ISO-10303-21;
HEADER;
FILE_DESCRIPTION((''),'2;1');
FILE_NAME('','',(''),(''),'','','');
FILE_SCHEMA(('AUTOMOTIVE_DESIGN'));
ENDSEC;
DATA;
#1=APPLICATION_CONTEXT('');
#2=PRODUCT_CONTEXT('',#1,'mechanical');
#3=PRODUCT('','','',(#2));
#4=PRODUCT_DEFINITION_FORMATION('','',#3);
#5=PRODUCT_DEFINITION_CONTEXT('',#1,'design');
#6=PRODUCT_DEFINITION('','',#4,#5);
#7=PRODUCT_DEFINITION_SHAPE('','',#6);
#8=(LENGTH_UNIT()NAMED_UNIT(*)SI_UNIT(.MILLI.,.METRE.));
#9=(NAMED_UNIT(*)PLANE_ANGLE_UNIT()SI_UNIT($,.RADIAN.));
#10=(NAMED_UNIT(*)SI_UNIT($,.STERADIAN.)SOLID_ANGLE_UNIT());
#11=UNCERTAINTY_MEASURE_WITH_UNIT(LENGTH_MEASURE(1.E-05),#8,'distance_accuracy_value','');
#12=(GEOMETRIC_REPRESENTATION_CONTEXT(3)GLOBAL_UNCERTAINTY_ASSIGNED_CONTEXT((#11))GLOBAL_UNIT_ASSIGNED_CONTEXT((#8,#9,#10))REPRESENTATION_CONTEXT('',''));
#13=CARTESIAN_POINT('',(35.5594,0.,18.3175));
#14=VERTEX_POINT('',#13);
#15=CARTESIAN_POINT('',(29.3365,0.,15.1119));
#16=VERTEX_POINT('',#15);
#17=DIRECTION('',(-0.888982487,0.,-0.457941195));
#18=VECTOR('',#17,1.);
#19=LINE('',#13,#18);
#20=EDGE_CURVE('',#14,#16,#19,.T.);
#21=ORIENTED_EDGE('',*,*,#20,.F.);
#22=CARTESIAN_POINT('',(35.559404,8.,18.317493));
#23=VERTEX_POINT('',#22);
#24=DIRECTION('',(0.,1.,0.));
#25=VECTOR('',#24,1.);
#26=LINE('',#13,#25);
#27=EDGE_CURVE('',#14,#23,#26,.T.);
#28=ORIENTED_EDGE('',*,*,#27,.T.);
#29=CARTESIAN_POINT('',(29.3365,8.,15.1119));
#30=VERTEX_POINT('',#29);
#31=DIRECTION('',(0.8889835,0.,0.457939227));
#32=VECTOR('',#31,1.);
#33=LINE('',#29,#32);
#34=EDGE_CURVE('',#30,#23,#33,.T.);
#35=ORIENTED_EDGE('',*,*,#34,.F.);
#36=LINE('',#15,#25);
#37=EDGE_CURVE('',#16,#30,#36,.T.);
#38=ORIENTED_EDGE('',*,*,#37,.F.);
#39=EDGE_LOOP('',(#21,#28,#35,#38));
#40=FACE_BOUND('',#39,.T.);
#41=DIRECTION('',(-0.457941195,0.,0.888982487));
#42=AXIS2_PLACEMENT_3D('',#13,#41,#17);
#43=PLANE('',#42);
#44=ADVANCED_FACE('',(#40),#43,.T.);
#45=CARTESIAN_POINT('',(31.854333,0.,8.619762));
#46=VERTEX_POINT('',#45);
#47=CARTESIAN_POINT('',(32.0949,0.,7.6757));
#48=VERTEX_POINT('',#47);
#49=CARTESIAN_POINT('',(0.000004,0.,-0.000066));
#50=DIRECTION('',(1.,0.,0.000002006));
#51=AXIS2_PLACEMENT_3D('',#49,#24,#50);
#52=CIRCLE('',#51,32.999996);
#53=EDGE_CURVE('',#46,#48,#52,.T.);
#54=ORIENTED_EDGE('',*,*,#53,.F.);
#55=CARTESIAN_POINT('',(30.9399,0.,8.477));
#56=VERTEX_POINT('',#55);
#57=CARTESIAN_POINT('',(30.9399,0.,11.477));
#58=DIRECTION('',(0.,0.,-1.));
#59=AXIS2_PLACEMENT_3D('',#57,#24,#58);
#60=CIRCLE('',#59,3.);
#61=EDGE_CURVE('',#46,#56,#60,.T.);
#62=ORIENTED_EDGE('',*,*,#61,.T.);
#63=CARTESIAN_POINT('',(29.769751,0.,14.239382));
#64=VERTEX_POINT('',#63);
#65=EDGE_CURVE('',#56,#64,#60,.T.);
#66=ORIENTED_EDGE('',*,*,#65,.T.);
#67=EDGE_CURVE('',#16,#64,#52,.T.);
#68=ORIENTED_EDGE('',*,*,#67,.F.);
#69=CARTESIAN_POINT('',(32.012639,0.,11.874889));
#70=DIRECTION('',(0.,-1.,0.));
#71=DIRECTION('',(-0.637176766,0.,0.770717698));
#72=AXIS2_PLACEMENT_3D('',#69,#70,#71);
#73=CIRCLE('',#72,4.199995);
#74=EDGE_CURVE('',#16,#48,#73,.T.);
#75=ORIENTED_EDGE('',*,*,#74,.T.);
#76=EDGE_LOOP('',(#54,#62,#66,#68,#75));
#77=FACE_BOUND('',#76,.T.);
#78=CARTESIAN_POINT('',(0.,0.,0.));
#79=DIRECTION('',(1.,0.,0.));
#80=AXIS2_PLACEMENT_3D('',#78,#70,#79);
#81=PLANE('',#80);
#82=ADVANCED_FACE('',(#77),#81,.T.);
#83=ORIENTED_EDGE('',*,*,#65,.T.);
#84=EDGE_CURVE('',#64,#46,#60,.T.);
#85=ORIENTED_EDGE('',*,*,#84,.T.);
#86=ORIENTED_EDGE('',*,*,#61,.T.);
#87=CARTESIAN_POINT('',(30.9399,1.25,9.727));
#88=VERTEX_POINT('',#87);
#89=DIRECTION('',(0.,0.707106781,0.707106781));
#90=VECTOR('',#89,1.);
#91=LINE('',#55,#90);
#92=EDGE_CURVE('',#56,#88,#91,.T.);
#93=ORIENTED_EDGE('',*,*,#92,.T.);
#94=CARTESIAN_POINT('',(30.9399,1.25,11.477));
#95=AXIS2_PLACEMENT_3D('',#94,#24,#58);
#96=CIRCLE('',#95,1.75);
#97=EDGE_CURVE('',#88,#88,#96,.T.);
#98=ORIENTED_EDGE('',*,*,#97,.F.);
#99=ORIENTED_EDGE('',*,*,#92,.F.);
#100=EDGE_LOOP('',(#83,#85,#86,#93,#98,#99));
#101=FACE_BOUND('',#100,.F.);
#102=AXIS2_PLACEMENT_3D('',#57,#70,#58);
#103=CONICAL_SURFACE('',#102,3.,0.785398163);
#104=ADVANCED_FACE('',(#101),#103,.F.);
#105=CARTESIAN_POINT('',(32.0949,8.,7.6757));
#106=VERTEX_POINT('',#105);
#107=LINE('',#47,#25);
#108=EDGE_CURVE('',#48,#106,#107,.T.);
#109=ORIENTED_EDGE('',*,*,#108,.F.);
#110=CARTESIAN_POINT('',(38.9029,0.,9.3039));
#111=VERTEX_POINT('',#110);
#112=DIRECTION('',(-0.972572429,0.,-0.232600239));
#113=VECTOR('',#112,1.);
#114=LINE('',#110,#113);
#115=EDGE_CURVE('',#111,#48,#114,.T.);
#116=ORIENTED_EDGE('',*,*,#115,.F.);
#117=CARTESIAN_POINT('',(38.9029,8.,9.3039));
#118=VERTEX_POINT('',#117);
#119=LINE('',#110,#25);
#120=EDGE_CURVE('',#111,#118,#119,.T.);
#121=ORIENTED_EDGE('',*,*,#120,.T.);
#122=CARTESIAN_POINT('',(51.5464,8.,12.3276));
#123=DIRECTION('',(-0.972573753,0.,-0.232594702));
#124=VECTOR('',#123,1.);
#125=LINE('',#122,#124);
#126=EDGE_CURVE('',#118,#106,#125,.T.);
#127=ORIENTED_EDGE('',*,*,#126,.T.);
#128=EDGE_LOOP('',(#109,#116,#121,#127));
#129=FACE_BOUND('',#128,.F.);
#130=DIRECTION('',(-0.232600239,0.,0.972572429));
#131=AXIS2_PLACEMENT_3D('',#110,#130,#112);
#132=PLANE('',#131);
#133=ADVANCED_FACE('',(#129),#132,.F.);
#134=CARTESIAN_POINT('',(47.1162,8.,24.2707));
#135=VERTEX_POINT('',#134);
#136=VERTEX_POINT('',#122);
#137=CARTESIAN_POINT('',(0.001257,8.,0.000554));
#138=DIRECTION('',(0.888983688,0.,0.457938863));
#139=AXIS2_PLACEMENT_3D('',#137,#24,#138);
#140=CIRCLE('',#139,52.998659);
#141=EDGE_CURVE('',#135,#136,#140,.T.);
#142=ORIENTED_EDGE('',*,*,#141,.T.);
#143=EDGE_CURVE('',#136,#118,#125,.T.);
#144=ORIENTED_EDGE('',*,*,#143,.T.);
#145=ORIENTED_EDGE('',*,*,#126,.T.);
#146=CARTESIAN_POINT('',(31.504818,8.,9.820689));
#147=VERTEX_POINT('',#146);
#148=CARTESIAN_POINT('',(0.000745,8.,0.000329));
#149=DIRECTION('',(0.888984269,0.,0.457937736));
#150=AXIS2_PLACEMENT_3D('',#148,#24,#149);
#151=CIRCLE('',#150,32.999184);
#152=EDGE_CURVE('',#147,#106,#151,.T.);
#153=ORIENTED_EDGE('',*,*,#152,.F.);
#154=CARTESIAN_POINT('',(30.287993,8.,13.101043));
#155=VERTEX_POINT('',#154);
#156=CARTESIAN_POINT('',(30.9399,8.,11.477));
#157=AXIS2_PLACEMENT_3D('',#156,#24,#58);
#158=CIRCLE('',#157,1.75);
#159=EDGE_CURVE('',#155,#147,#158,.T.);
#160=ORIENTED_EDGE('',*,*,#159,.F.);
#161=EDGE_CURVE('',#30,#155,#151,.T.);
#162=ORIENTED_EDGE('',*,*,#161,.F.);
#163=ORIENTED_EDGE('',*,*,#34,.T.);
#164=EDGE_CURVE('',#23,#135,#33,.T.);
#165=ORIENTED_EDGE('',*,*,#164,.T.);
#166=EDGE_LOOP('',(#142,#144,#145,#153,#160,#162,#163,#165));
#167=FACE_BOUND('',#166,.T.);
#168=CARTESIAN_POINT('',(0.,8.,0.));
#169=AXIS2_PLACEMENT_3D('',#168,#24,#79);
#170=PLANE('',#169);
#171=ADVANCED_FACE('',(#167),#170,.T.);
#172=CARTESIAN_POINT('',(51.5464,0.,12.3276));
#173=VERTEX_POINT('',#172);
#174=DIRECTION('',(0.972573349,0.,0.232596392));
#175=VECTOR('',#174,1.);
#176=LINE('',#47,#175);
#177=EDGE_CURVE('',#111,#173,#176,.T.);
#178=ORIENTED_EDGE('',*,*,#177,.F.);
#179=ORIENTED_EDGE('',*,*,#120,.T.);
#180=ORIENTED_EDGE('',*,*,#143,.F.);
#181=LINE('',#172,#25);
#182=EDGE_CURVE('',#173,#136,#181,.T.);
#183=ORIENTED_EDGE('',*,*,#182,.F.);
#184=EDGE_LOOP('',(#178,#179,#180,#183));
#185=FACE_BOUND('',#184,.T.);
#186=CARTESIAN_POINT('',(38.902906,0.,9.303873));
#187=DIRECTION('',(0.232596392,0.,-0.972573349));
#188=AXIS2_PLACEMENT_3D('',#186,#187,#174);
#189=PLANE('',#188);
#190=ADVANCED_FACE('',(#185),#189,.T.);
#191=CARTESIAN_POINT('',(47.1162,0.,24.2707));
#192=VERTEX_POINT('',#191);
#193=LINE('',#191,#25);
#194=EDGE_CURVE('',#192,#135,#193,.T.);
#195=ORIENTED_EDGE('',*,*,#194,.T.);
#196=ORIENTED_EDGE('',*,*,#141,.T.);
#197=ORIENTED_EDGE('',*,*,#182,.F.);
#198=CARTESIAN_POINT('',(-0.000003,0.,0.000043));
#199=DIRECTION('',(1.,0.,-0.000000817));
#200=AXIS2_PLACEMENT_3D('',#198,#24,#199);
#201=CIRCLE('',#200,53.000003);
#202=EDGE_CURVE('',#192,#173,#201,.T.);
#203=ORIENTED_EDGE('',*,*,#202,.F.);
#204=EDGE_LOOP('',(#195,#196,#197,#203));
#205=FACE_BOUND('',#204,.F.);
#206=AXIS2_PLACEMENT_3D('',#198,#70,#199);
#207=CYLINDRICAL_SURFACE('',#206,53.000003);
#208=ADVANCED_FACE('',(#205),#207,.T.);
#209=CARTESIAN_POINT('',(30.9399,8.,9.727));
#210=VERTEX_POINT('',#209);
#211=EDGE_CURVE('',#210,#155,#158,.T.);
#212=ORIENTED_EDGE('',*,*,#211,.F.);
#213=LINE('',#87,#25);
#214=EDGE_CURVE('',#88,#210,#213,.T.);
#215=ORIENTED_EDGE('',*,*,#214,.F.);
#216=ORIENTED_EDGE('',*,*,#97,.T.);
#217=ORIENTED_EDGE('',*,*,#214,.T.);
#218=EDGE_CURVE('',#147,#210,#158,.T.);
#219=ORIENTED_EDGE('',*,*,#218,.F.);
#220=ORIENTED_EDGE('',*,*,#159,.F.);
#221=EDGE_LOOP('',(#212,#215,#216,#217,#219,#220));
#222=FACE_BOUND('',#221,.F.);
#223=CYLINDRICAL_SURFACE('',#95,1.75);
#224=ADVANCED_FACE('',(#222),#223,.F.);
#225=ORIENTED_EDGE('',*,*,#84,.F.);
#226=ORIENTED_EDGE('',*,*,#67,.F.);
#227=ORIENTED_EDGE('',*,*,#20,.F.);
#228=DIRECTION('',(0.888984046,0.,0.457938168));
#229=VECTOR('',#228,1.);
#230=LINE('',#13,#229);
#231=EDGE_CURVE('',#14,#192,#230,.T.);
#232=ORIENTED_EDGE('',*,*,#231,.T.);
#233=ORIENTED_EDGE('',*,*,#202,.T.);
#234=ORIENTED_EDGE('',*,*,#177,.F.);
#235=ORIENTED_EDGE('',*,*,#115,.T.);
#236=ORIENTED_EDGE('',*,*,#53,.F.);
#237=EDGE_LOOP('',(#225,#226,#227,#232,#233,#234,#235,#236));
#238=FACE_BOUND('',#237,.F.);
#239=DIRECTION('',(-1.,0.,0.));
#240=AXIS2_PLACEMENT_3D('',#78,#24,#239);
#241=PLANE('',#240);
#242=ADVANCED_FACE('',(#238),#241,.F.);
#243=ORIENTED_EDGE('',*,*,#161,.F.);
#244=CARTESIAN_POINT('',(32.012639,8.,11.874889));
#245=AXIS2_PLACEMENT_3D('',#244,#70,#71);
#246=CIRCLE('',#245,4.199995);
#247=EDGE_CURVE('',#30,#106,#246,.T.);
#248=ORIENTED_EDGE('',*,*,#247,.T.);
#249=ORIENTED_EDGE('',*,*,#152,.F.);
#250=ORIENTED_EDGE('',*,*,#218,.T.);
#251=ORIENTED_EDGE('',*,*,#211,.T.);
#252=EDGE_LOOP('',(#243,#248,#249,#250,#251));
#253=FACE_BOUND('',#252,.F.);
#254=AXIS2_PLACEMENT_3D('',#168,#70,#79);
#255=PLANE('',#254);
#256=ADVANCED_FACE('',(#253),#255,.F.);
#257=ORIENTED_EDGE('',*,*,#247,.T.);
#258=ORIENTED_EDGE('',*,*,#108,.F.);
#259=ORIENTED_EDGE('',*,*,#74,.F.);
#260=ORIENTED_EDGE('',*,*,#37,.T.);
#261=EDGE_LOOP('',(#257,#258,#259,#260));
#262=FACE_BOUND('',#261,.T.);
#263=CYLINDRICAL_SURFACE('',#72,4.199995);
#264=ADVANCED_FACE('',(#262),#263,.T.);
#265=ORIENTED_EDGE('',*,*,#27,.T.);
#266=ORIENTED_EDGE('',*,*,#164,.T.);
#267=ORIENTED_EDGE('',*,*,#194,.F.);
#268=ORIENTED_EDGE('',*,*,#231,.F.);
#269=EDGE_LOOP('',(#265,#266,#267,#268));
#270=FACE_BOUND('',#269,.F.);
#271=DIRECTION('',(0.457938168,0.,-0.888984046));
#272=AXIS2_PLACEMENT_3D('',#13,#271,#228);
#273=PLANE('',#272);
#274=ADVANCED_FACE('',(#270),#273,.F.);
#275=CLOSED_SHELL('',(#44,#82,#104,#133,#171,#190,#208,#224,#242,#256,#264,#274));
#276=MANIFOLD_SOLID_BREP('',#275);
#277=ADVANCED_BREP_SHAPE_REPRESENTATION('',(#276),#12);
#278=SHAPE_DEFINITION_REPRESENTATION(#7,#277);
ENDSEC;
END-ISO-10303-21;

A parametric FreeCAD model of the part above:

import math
import FreeCAD as App
import Part
import Sketcher
Q = App.Units.Quantity

doc = App.newDocument("Part")
body = doc.addObject("PartDesign::Body", "Body")

sketch1 = doc.addObject("Sketcher::SketchObject", "Sketch")
body.addObject(sketch1)
sketch1.AttachmentSupport = (doc.XZ_Plane, [""])
sketch1.MapMode = "FlatFace"
sketch1.addGeometry([
    Part.ArcOfCircle(Part.Circle(App.Vector(0, 0, 0), App.Vector(0, 0, 1), 33), math.radians(13.45), math.radians(27.25)),
    Part.LineSegment(App.Vector(29, 15, 0), App.Vector(36, 18, 0)),
    Part.LineSegment(App.Vector(36, 18, 0), App.Vector(47, 24, 0)),
    Part.ArcOfCircle(Part.Circle(App.Vector(0, 0, 0), App.Vector(0, 0, 1), 53), math.radians(13.45), math.radians(27.25)),
    Part.LineSegment(App.Vector(52, 12, 0), App.Vector(39, 9, 0)),
    Part.LineSegment(App.Vector(39, 9, 0), App.Vector(32, 8, 0)),
], False)
sketch1.addConstraint([
    Sketcher.Constraint("Coincident", 0, 2, 1, 1),
    Sketcher.Constraint("Coincident", 1, 2, 2, 1),
    Sketcher.Constraint("Coincident", 2, 2, 3, 2),
    Sketcher.Constraint("Coincident", 3, 1, 4, 1),
    Sketcher.Constraint("Coincident", 4, 2, 5, 1),
    Sketcher.Constraint("Coincident", 5, 2, 0, 1),
    Sketcher.Constraint("Coincident", 0, 3, -1, 1),
    Sketcher.Constraint("Coincident", 3, 3, -1, 1),
    Sketcher.Constraint("Parallel", 1, 2),
    Sketcher.Constraint("Parallel", 4, 5),
    Sketcher.Constraint("Equal", 2, 4),
    Sketcher.Constraint("Radius", 0, Q("33 mm")),
    Sketcher.Constraint("Radius", 3, Q("53 mm")),
    Sketcher.Constraint("Distance", 1, Q("7 mm")),
    Sketcher.Constraint("Angle", 4, Q("-166.55 deg")),
    Sketcher.Constraint("DistanceY", 3, 1, 1, 2, Q("5.99 mm")),
    Sketcher.Constraint("DistanceX", 0, 2, 3, 1, Q("22.21 mm")),
    Sketcher.Constraint("DistanceY", -1, 1, 0, 2, Q("15.112 mm")),
])
pad1 = doc.addObject("PartDesign::Pad", "Pad")
body.addObject(pad1)
pad1.Profile = sketch1
pad1.Length = 10
pad1.Reversed = True

sketch2 = doc.addObject("Sketcher::SketchObject", "Sketch001")
body.addObject(sketch2)
sketch2.AttachmentSupport = (doc.XZ_Plane, [""])
sketch2.MapMode = "FlatFace"
sketch2.AttachmentOffset = App.Placement(App.Vector(0, 0, -10), App.Rotation())
sketch2.addGeometry([
    Part.ArcOfCircle(Part.Circle(App.Vector(0, 0, 0), App.Vector(0, 0, 1), 33), math.radians(13.45), math.radians(27.25)),
    Part.LineSegment(App.Vector(29, 15, 0), App.Vector(47, 24, 0)),
    Part.ArcOfCircle(Part.Circle(App.Vector(0, 0, 0), App.Vector(0, 0, 1), 53), math.radians(13.45), math.radians(27.25)),
    Part.LineSegment(App.Vector(52, 12, 0), App.Vector(32, 8, 0)),
], False)
sketch2.addConstraint([
    Sketcher.Constraint("Coincident", 0, 2, 1, 1),
    Sketcher.Constraint("Coincident", 1, 2, 2, 2),
    Sketcher.Constraint("Coincident", 2, 1, 3, 1),
    Sketcher.Constraint("Coincident", 3, 2, 0, 1),
    Sketcher.Constraint("Coincident", 0, 3, -1, 1),
    Sketcher.Constraint("Equal", 1, 3),
    Sketcher.Constraint("Radius", 0, Q("33 mm")),
    Sketcher.Constraint("Distance", 1, Q("20 mm")),
    Sketcher.Constraint("Angle", 3, Q("-166.55 deg")),
    Sketcher.Constraint("Radius", 2, Q("52.9987 mm")),
    Sketcher.Constraint("DistanceX", 0, 2, 2, 1, Q("22.21 mm")),
    Sketcher.Constraint("DistanceY", -1, 1, 0, 2, Q("15.112 mm")),
    Sketcher.Constraint("DistanceX", 2, 3, 1, 2, Q("47.115 mm")),
])
pocket1 = doc.addObject("PartDesign::Pocket", "Pocket")
body.addObject(pocket1)
pocket1.Profile = sketch2
pocket1.Length = 2
pocket1.Reversed = True

sketch3 = doc.addObject("Sketcher::SketchObject", "Sketch002")
body.addObject(sketch3)
sketch3.AttachmentSupport = (doc.XZ_Plane, [""])
sketch3.MapMode = "FlatFace"
sketch3.addGeometry([
    Part.ArcOfCircle(Part.Circle(App.Vector(32, 11.9, 0), App.Vector(0, 0, 1), 4.2), math.radians(130), math.radians(271)),
    Part.ArcOfCircle(Part.Circle(App.Vector(0, 0, 0), App.Vector(0, 0, 1), 33), math.radians(13.45), math.radians(27.25)),
], False)
sketch3.addConstraint([
    Sketcher.Constraint("Coincident", 0, 1, 1, 2),
    Sketcher.Constraint("Coincident", 1, 1, 0, 2),
    Sketcher.Constraint("Coincident", 1, 3, -1, 1),
    Sketcher.Constraint("Radius", 0, Q("4.2 mm")),
    Sketcher.Constraint("Radius", 1, Q("33 mm")),
    Sketcher.Constraint("DistanceY", -1, 1, 0, 3, Q("11.875 mm")),
    Sketcher.Constraint("DistanceY", -1, 1, 0, 1, Q("15.112 mm")),
])
pad2 = doc.addObject("PartDesign::Pad", "Pad001")
body.addObject(pad2)
pad2.Profile = sketch3
pad2.Length = 8
pad2.Reversed = True

sketch4 = doc.addObject("Sketcher::SketchObject", "Sketch003")
body.addObject(sketch4)
sketch4.AttachmentSupport = (doc.XZ_Plane, [""])
sketch4.MapMode = "FlatFace"
sketch4.addGeometry(Part.Circle(App.Vector(30.9, 11.5, 0), App.Vector(0, 0, 1), 1.8), False)
sketch4.addConstraint([
    Sketcher.Constraint("Diameter", 0, Q("3.5 mm")),
    Sketcher.Constraint("DistanceX", -1, 1, 0, 3, Q("30.94 mm")),
    Sketcher.Constraint("DistanceY", -1, 1, 0, 3, Q("11.477 mm")),
])
doc.recompute()
hole = doc.addObject("PartDesign::Hole", "Hole")
body.addObject(hole)
hole.Profile = sketch4
hole.ThreadType = "None"
hole.Diameter = 3.5
hole.DepthType = "Dimension"
hole.Depth = 8
hole.DrillPoint = "Angled"
hole.DrillPointAngle = 118
hole.HoleCutType = "Countersink"
hole.HoleCutDiameter = 6
hole.HoleCutCountersinkAngle = 90

doc.recompute()
